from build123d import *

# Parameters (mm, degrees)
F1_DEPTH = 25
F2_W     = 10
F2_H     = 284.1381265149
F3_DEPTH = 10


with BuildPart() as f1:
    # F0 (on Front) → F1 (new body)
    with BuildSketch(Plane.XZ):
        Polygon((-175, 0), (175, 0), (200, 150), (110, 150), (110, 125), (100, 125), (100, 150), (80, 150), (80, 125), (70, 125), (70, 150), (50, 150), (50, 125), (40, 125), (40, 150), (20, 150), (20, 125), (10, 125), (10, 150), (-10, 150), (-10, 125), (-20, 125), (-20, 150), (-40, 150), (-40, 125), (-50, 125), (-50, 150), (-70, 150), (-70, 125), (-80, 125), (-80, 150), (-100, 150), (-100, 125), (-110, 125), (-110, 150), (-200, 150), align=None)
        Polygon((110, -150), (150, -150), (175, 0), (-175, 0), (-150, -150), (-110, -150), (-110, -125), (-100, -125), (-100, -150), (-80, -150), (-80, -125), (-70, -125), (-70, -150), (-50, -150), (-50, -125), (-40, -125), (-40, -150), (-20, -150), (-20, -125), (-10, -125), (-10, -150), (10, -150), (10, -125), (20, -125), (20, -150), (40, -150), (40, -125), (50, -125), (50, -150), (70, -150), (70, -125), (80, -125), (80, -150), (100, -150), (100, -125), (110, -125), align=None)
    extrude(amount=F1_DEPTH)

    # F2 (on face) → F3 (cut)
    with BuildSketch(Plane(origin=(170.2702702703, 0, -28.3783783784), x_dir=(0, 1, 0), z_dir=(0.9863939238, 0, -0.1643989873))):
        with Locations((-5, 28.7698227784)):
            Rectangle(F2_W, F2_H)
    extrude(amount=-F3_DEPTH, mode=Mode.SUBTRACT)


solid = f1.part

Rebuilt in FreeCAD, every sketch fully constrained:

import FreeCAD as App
import Part
import Sketcher

V = App.Vector

doc = App.newDocument("Part")
params = doc.addObject("Spreadsheet::Sheet", "Params")
for row, (alias, value) in enumerate([
    ("sketch1_width", "90 mm"),
    ("sketch1_width2", "10 mm"),
    ("sketch1_width3", "20 mm"),
    ("sketch1_width4", "40 mm"),
    ("sketch1_height", "25 mm"),
    ("pad1_length", "25 mm"),
    ("sketch2_width", "10 mm"),
    ("pocket1_length", "10 mm"),
], start=1):
    params.set(f"A{row}", alias)
    params.set(f"B{row}", "=" + value)
    params.setAlias(f"B{row}", alias)

body = doc.addObject("PartDesign::Body", "Body")

# Sketch on XZ plane
sketch1 = doc.addObject("Sketcher::SketchObject", "Sketch")
body.addObject(sketch1)
sketch1.AttachmentSupport = (doc.XZ_Plane, [""])
sketch1.MapMode = "FlatFace"
sketch1.addGeometry([
    Part.LineSegment(V(200, 150, 0), V(110, 150, 0)),  # 0
    Part.LineSegment(V(110, 150, 0), V(110, 125, 0)),  # 1
    Part.LineSegment(V(110, 125, 0), V(100, 125, 0)),  # 2
    Part.LineSegment(V(100, 125, 0), V(100, 150, 0)),  # 3
    Part.LineSegment(V(100, 150, 0), V(80, 150, 0)),  # 4
    Part.LineSegment(V(80, 150, 0), V(80, 125, 0)),  # 5
    Part.LineSegment(V(80, 125, 0), V(70, 125, 0)),  # 6
    Part.LineSegment(V(70, 125, 0), V(70, 150, 0)),  # 7
    Part.LineSegment(V(70, 150, 0), V(50, 150, 0)),  # 8
    Part.LineSegment(V(50, 150, 0), V(50, 125, 0)),  # 9
    Part.LineSegment(V(50, 125, 0), V(40, 125, 0)),  # 10
    Part.LineSegment(V(40, 125, 0), V(40, 150, 0)),  # 11
    Part.LineSegment(V(40, 150, 0), V(20, 150, 0)),  # 12
    Part.LineSegment(V(20, 150, 0), V(20, 125, 0)),  # 13
    Part.LineSegment(V(20, 125, 0), V(10, 125, 0)),  # 14
    Part.LineSegment(V(10, 125, 0), V(10, 150, 0)),  # 15
    Part.LineSegment(V(10, 150, 0), V(-10, 150, 0)),  # 16
    Part.LineSegment(V(-10, 150, 0), V(-10, 125, 0)),  # 17
    Part.LineSegment(V(-10, 125, 0), V(-20, 125, 0)),  # 18
    Part.LineSegment(V(-20, 125, 0), V(-20, 150, 0)),  # 19
    Part.LineSegment(V(-20, 150, 0), V(-40, 150, 0)),  # 20
    Part.LineSegment(V(-40, 150, 0), V(-40, 125, 0)),  # 21
    Part.LineSegment(V(-40, 125, 0), V(-50, 125, 0)),  # 22
    Part.LineSegment(V(-50, 125, 0), V(-50, 150, 0)),  # 23
    Part.LineSegment(V(-50, 150, 0), V(-70, 150, 0)),  # 24
    Part.LineSegment(V(-70, 150, 0), V(-70, 125, 0)),  # 25
    Part.LineSegment(V(-70, 125, 0), V(-80, 125, 0)),  # 26
    Part.LineSegment(V(-80, 125, 0), V(-80, 150, 0)),  # 27
    Part.LineSegment(V(-80, 150, 0), V(-100, 150, 0)),  # 28
    Part.LineSegment(V(-100, 150, 0), V(-100, 125, 0)),  # 29
    Part.LineSegment(V(-100, 125, 0), V(-110, 125, 0)),  # 30
    Part.LineSegment(V(-110, 125, 0), V(-110, 150, 0)),  # 31
    Part.LineSegment(V(-110, 150, 0), V(-200, 150, 0)),  # 32
    Part.LineSegment(V(-200, 150, 0), V(-150, -150, 0)),  # 33
    Part.LineSegment(V(-150, -150, 0), V(-110, -150, 0)),  # 34
    Part.LineSegment(V(-110, -150, 0), V(-110, -125, 0)),  # 35
    Part.LineSegment(V(-110, -125, 0), V(-100, -125, 0)),  # 36
    Part.LineSegment(V(-100, -125, 0), V(-100, -150, 0)),  # 37
    Part.LineSegment(V(-100, -150, 0), V(-80, -150, 0)),  # 38
    Part.LineSegment(V(-80, -150, 0), V(-80, -125, 0)),  # 39
    Part.LineSegment(V(-80, -125, 0), V(-70, -125, 0)),  # 40
    Part.LineSegment(V(-70, -125, 0), V(-70, -150, 0)),  # 41
    Part.LineSegment(V(-70, -150, 0), V(-50, -150, 0)),  # 42
    Part.LineSegment(V(-50, -150, 0), V(-50, -125, 0)),  # 43
    Part.LineSegment(V(-50, -125, 0), V(-40, -125, 0)),  # 44
    Part.LineSegment(V(-40, -125, 0), V(-40, -150, 0)),  # 45
    Part.LineSegment(V(-40, -150, 0), V(-20, -150, 0)),  # 46
    Part.LineSegment(V(-20, -150, 0), V(-20, -125, 0)),  # 47
    Part.LineSegment(V(-20, -125, 0), V(-10, -125, 0)),  # 48
    Part.LineSegment(V(-10, -125, 0), V(-10, -150, 0)),  # 49
    Part.LineSegment(V(-10, -150, 0), V(10, -150, 0)),  # 50
    Part.LineSegment(V(10, -150, 0), V(10, -125, 0)),  # 51
    Part.LineSegment(V(10, -125, 0), V(20, -125, 0)),  # 52
    Part.LineSegment(V(20, -125, 0), V(20, -150, 0)),  # 53
    Part.LineSegment(V(20, -150, 0), V(40, -150, 0)),  # 54
    Part.LineSegment(V(40, -150, 0), V(40, -125, 0)),  # 55
    Part.LineSegment(V(40, -125, 0), V(50, -125, 0)),  # 56
    Part.LineSegment(V(50, -125, 0), V(50, -150, 0)),  # 57
    Part.LineSegment(V(50, -150, 0), V(70, -150, 0)),  # 58
    Part.LineSegment(V(70, -150, 0), V(70, -125, 0)),  # 59
    Part.LineSegment(V(70, -125, 0), V(80, -125, 0)),  # 60
    Part.LineSegment(V(80, -125, 0), V(80, -150, 0)),  # 61
    Part.LineSegment(V(80, -150, 0), V(100, -150, 0)),  # 62
    Part.LineSegment(V(100, -150, 0), V(100, -125, 0)),  # 63
    Part.LineSegment(V(100, -125, 0), V(110, -125, 0)),  # 64
    Part.LineSegment(V(110, -125, 0), V(110, -150, 0)),  # 65
    Part.LineSegment(V(110, -150, 0), V(150, -150, 0)),  # 66
    Part.LineSegment(V(150, -150, 0), V(200, 150, 0)),  # 67
], False)
sketch1.addConstraint([
    Sketcher.Constraint("Coincident", 0, 2, 1, 1),
    Sketcher.Constraint("Coincident", 1, 2, 2, 1),
    Sketcher.Constraint("Coincident", 2, 2, 3, 1),
    Sketcher.Constraint("Coincident", 3, 2, 4, 1),
    Sketcher.Constraint("Coincident", 4, 2, 5, 1),
    Sketcher.Constraint("Coincident", 5, 2, 6, 1),
    Sketcher.Constraint("Coincident", 6, 2, 7, 1),
    Sketcher.Constraint("Coincident", 7, 2, 8, 1),
    Sketcher.Constraint("Coincident", 8, 2, 9, 1),
    Sketcher.Constraint("Coincident", 9, 2, 10, 1),
    Sketcher.Constraint("Coincident", 10, 2, 11, 1),
    Sketcher.Constraint("Coincident", 11, 2, 12, 1),
    Sketcher.Constraint("Coincident", 12, 2, 13, 1),
    Sketcher.Constraint("Coincident", 13, 2, 14, 1),
    Sketcher.Constraint("Coincident", 14, 2, 15, 1),
    Sketcher.Constraint("Coincident", 15, 2, 16, 1),
    Sketcher.Constraint("Coincident", 16, 2, 17, 1),
    Sketcher.Constraint("Coincident", 17, 2, 18, 1),
    Sketcher.Constraint("Coincident", 18, 2, 19, 1),
    Sketcher.Constraint("Coincident", 19, 2, 20, 1),
    Sketcher.Constraint("Coincident", 20, 2, 21, 1),
    Sketcher.Constraint("Coincident", 21, 2, 22, 1),
    Sketcher.Constraint("Coincident", 22, 2, 23, 1),
    Sketcher.Constraint("Coincident", 23, 2, 24, 1),
    Sketcher.Constraint("Coincident", 24, 2, 25, 1),
    Sketcher.Constraint("Coincident", 25, 2, 26, 1),
    Sketcher.Constraint("Coincident", 26, 2, 27, 1),
    Sketcher.Constraint("Coincident", 27, 2, 28, 1),
    Sketcher.Constraint("Coincident", 28, 2, 29, 1),
    Sketcher.Constraint("Coincident", 29, 2, 30, 1),
    Sketcher.Constraint("Coincident", 30, 2, 31, 1),
    Sketcher.Constraint("Coincident", 31, 2, 32, 1),
    Sketcher.Constraint("Coincident", 32, 2, 33, 1),
    Sketcher.Constraint("Coincident", 33, 2, 34, 1),
    Sketcher.Constraint("Coincident", 34, 2, 35, 1),
    Sketcher.Constraint("Coincident", 35, 2, 36, 1),
    Sketcher.Constraint("Coincident", 36, 2, 37, 1),
    Sketcher.Constraint("Coincident", 37, 2, 38, 1),
    Sketcher.Constraint("Coincident", 38, 2, 39, 1),
    Sketcher.Constraint("Coincident", 39, 2, 40, 1),
    Sketcher.Constraint("Coincident", 40, 2, 41, 1),
    Sketcher.Constraint("Coincident", 41, 2, 42, 1),
    Sketcher.Constraint("Coincident", 42, 2, 43, 1),
    Sketcher.Constraint("Coincident", 43, 2, 44, 1),
    Sketcher.Constraint("Coincident", 44, 2, 45, 1),
    Sketcher.Constraint("Coincident", 45, 2, 46, 1),
    Sketcher.Constraint("Coincident", 46, 2, 47, 1),
    Sketcher.Constraint("Coincident", 47, 2, 48, 1),
    Sketcher.Constraint("Coincident", 48, 2, 49, 1),
    Sketcher.Constraint("Coincident", 49, 2, 50, 1),
    Sketcher.Constraint("Coincident", 50, 2, 51, 1),
    Sketcher.Constraint("Coincident", 51, 2, 52, 1),
    Sketcher.Constraint("Coincident", 52, 2, 53, 1),
    Sketcher.Constraint("Coincident", 53, 2, 54, 1),
    Sketcher.Constraint("Coincident", 54, 2, 55, 1),
    Sketcher.Constraint("Coincident", 55, 2, 56, 1),
    Sketcher.Constraint("Coincident", 56, 2, 57, 1),
    Sketcher.Constraint("Coincident", 57, 2, 58, 1),
    Sketcher.Constraint("Coincident", 58, 2, 59, 1),
    Sketcher.Constraint("Coincident", 59, 2, 60, 1),
    Sketcher.Constraint("Coincident", 60, 2, 61, 1),
    Sketcher.Constraint("Coincident", 61, 2, 62, 1),
    Sketcher.Constraint("Coincident", 62, 2, 63, 1),
    Sketcher.Constraint("Coincident", 63, 2, 64, 1),
    Sketcher.Constraint("Coincident", 64, 2, 65, 1),
    Sketcher.Constraint("Coincident", 65, 2, 66, 1),
    Sketcher.Constraint("Coincident", 66, 2, 67, 1),
    Sketcher.Constraint("Coincident", 67, 2, 0, 1),
    Sketcher.Constraint("Horizontal", 0),
    Sketcher.Constraint("Vertical", 1),
    Sketcher.Constraint("Horizontal", 2),
    Sketcher.Constraint("Vertical", 3),
    Sketcher.Constraint("Horizontal", 4),
    Sketcher.Constraint("Vertical", 5),
    Sketcher.Constraint("Horizontal", 6),
    Sketcher.Constraint("Vertical", 7),
    Sketcher.Constraint("Horizontal", 8),
    Sketcher.Constraint("Vertical", 9),
    Sketcher.Constraint("Horizontal", 10),
    Sketcher.Constraint("Vertical", 11),
    Sketcher.Constraint("Horizontal", 12),
    Sketcher.Constraint("Vertical", 13),
    Sketcher.Constraint("Horizontal", 14),
    Sketcher.Constraint("Vertical", 15),
    Sketcher.Constraint("Horizontal", 16),
    Sketcher.Constraint("Vertical", 17),
    Sketcher.Constraint("Horizontal", 18),
    Sketcher.Constraint("Vertical", 19),
    Sketcher.Constraint("Horizontal", 20),
    Sketcher.Constraint("Vertical", 21),
    Sketcher.Constraint("Horizontal", 22),
    Sketcher.Constraint("Vertical", 23),
    Sketcher.Constraint("Horizontal", 24),
    Sketcher.Constraint("Vertical", 25),
    Sketcher.Constraint("Horizontal", 26),
    Sketcher.Constraint("Vertical", 27),
    Sketcher.Constraint("Horizontal", 28),
    Sketcher.Constraint("Vertical", 29),
    Sketcher.Constraint("Horizontal", 30),
    Sketcher.Constraint("Vertical", 31),
    Sketcher.Constraint("Horizontal", 32),
    Sketcher.Constraint("Horizontal", 34),
    Sketcher.Constraint("Vertical", 35),
    Sketcher.Constraint("Horizontal", 36),
    Sketcher.Constraint("Vertical", 37),
    Sketcher.Constraint("Horizontal", 38),
    Sketcher.Constraint("Vertical", 39),
    Sketcher.Constraint("Horizontal", 40),
    Sketcher.Constraint("Vertical", 41),
    Sketcher.Constraint("Horizontal", 42),
    Sketcher.Constraint("Vertical", 43),
    Sketcher.Constraint("Horizontal", 44),
    Sketcher.Constraint("Vertical", 45),
    Sketcher.Constraint("Horizontal", 46),
    Sketcher.Constraint("Vertical", 47),
    Sketcher.Constraint("Horizontal", 48),
    Sketcher.Constraint("Vertical", 49),
    Sketcher.Constraint("Horizontal", 50),
    Sketcher.Constraint("Vertical", 51),
    Sketcher.Constraint("Horizontal", 52),
    Sketcher.Constraint("Vertical", 53),
    Sketcher.Constraint("Horizontal", 54),
    Sketcher.Constraint("Vertical", 55),
    Sketcher.Constraint("Horizontal", 56),
    Sketcher.Constraint("Vertical", 57),
    Sketcher.Constraint("Horizontal", 58),
    Sketcher.Constraint("Vertical", 59),
    Sketcher.Constraint("Horizontal", 60),
    Sketcher.Constraint("Vertical", 61),
    Sketcher.Constraint("Horizontal", 62),
    Sketcher.Constraint("Vertical", 63),
    Sketcher.Constraint("Horizontal", 64),
    Sketcher.Constraint("Vertical", 65),
    Sketcher.Constraint("Horizontal", 66),
    Sketcher.Constraint("Symmetric", 0, 2, 34, 2, -1, 1),
    Sketcher.Constraint("Symmetric", 2, 2, 36, 2, -1, 1),
    Sketcher.Constraint("Symmetric", 4, 2, 38, 2, -1, 1),
    Sketcher.Constraint("Symmetric", 6, 2, 40, 2, -1, 1),
    Sketcher.Constraint("Symmetric", 8, 2, 42, 2, -1, 1),
    Sketcher.Constraint("Symmetric", 10, 2, 44, 2, -1, 1),
    Sketcher.Constraint("Symmetric", 12, 2, 46, 2, -1, 1),
    Sketcher.Constraint("Symmetric", 14, 2, 48, 2, -1, 1),
    Sketcher.Constraint("Symmetric", 16, 2, 50, 2, -1, 1),
    Sketcher.Constraint("Symmetric", 18, 2, 52, 2, -1, 1),
    Sketcher.Constraint("Symmetric", 20, 2, 54, 2, -1, 1),
    Sketcher.Constraint("Symmetric", 22, 2, 56, 2, -1, 1),
    Sketcher.Constraint("Symmetric", 24, 2, 58, 2, -1, 1),
    Sketcher.Constraint("Symmetric", 26, 2, 60, 2, -1, 1),
    Sketcher.Constraint("Symmetric", 28, 2, 62, 2, -1, 1),
    Sketcher.Constraint("Symmetric", 30, 2, 64, 2, -1, 1),
    Sketcher.Constraint("Symmetric", 14, 2, 17, 2, -2),
    Sketcher.Constraint("Symmetric", 12, 2, 19, 2, -2),
    Sketcher.Constraint("Symmetric", 10, 2, 21, 2, -2),
    Sketcher.Constraint("Symmetric", 8, 2, 23, 2, -2),
    Sketcher.Constraint("Symmetric", 6, 2, 25, 2, -2),
    Sketcher.Constraint("Symmetric", 4, 2, 27, 2, -2),
    Sketcher.Constraint("Symmetric", 2, 2, 29, 2, -2),
    Sketcher.Constraint("Symmetric", 0, 2, 31, 2, -2),
    Sketcher.Constraint("Symmetric", 33, 2, 66, 2, -2),
    Sketcher.Constraint("Horizontal", 0, 2, 3, 2),
    Sketcher.Constraint("Horizontal", 2, 2, 5, 2),
    Sketcher.Constraint("Horizontal", 4, 2, 7, 2),
    Sketcher.Constraint("Horizontal", 6, 2, 9, 2),
    Sketcher.Constraint("Horizontal", 8, 2, 11, 2),
    Sketcher.Constraint("Horizontal", 10, 2, 13, 2),
    Sketcher.Constraint("Horizontal", 12, 2, 15, 2),
    Sketcher.Constraint("Equal", 2, 6),
    Sketcher.Constraint("Equal", 4, 8),
    Sketcher.Constraint("Equal", 6, 10),
    Sketcher.Constraint("Equal", 8, 12),
    Sketcher.Constraint("Equal", 10, 14),
    Sketcher.Constraint("Equal", 12, 16),
    Sketcher.Constraint("Equal", 0, 32),
    Sketcher.Constraint("DistanceX", 0, 2, 0, 1, 90.0),
    Sketcher.Constraint("DistanceX", 2, 2, 2, 1, 10.0),
    Sketcher.Constraint("DistanceX", 4, 2, 4, 1, 20.0),
    Sketcher.Constraint("DistanceX", 34, 1, 34, 2, 40.0),
    Sketcher.Constraint("DistanceY", 1, 2, 1, 1, 25.0),
    Sketcher.Constraint("DistanceY", -1, 1, 0, 2, 150.0),
])
sketch1.setExpression("Constraints[173]", "Params.sketch1_width")
sketch1.setExpression("Constraints[174]", "Params.sketch1_width2")
sketch1.setExpression("Constraints[175]", "Params.sketch1_width3")
sketch1.setExpression("Constraints[176]", "Params.sketch1_width4")
sketch1.setExpression("Constraints[177]", "Params.sketch1_height")
pad1 = doc.addObject("PartDesign::Pad", "Pad")
body.addObject(pad1)
pad1.Profile = sketch1
pad1.setExpression("Length", "Params.pad1_length")

# Sketch on an angled plane
sketch2 = doc.addObject("Sketcher::SketchObject", "Sketch001")
body.addObject(sketch2)
sketch2.Placement = App.Placement(V(170.27027, 0, -28.378378), App.Rotation(V(0, 1, 0), V(0.164398987, 0, 0.986393924), V(0.986393924, 0, -0.164398987), "ZXY"))
sketch2.addGeometry([
    Part.LineSegment(V(-10, 170.838886, 0), V(-10, -113.299241, 0)),
    Part.LineSegment(V(-10, -113.299241, 0), V(0, -113.299241, 0)),
    Part.LineSegment(V(0, -113.299241, 0), V(0, 170.838886, 0)),
    Part.LineSegment(V(0, 170.838886, 0), V(-10, 170.838886, 0)),
], False)
sketch2.addConstraint([
    Sketcher.Constraint("Coincident", 0, 2, 1, 1),
    Sketcher.Constraint("Coincident", 1, 2, 2, 1),
    Sketcher.Constraint("Coincident", 2, 2, 3, 1),
    Sketcher.Constraint("Coincident", 3, 2, 0, 1),
    Sketcher.Constraint("Vertical", 0),
    Sketcher.Constraint("Horizontal", 1),
    Sketcher.Constraint("Vertical", 2),
    Sketcher.Constraint("Horizontal", 3),
    Sketcher.Constraint("PointOnObject", 1, 2, -2),
    Sketcher.Constraint("DistanceX", 1, 1, 1, 2, 10.0),
    Sketcher.Constraint("DistanceY", 0, 2, 0, 1, 284.138127),
    Sketcher.Constraint("DistanceY", 0, 2, -1, 1, 113.299241),
])
sketch2.setExpression("Constraints[9]", "Params.sketch2_width")
pocket1 = doc.addObject("PartDesign::Pocket", "Pocket")
body.addObject(pocket1)
pocket1.Profile = sketch2
pocket1.setExpression("Length", "Params.pocket1_length")

doc.recompute()
